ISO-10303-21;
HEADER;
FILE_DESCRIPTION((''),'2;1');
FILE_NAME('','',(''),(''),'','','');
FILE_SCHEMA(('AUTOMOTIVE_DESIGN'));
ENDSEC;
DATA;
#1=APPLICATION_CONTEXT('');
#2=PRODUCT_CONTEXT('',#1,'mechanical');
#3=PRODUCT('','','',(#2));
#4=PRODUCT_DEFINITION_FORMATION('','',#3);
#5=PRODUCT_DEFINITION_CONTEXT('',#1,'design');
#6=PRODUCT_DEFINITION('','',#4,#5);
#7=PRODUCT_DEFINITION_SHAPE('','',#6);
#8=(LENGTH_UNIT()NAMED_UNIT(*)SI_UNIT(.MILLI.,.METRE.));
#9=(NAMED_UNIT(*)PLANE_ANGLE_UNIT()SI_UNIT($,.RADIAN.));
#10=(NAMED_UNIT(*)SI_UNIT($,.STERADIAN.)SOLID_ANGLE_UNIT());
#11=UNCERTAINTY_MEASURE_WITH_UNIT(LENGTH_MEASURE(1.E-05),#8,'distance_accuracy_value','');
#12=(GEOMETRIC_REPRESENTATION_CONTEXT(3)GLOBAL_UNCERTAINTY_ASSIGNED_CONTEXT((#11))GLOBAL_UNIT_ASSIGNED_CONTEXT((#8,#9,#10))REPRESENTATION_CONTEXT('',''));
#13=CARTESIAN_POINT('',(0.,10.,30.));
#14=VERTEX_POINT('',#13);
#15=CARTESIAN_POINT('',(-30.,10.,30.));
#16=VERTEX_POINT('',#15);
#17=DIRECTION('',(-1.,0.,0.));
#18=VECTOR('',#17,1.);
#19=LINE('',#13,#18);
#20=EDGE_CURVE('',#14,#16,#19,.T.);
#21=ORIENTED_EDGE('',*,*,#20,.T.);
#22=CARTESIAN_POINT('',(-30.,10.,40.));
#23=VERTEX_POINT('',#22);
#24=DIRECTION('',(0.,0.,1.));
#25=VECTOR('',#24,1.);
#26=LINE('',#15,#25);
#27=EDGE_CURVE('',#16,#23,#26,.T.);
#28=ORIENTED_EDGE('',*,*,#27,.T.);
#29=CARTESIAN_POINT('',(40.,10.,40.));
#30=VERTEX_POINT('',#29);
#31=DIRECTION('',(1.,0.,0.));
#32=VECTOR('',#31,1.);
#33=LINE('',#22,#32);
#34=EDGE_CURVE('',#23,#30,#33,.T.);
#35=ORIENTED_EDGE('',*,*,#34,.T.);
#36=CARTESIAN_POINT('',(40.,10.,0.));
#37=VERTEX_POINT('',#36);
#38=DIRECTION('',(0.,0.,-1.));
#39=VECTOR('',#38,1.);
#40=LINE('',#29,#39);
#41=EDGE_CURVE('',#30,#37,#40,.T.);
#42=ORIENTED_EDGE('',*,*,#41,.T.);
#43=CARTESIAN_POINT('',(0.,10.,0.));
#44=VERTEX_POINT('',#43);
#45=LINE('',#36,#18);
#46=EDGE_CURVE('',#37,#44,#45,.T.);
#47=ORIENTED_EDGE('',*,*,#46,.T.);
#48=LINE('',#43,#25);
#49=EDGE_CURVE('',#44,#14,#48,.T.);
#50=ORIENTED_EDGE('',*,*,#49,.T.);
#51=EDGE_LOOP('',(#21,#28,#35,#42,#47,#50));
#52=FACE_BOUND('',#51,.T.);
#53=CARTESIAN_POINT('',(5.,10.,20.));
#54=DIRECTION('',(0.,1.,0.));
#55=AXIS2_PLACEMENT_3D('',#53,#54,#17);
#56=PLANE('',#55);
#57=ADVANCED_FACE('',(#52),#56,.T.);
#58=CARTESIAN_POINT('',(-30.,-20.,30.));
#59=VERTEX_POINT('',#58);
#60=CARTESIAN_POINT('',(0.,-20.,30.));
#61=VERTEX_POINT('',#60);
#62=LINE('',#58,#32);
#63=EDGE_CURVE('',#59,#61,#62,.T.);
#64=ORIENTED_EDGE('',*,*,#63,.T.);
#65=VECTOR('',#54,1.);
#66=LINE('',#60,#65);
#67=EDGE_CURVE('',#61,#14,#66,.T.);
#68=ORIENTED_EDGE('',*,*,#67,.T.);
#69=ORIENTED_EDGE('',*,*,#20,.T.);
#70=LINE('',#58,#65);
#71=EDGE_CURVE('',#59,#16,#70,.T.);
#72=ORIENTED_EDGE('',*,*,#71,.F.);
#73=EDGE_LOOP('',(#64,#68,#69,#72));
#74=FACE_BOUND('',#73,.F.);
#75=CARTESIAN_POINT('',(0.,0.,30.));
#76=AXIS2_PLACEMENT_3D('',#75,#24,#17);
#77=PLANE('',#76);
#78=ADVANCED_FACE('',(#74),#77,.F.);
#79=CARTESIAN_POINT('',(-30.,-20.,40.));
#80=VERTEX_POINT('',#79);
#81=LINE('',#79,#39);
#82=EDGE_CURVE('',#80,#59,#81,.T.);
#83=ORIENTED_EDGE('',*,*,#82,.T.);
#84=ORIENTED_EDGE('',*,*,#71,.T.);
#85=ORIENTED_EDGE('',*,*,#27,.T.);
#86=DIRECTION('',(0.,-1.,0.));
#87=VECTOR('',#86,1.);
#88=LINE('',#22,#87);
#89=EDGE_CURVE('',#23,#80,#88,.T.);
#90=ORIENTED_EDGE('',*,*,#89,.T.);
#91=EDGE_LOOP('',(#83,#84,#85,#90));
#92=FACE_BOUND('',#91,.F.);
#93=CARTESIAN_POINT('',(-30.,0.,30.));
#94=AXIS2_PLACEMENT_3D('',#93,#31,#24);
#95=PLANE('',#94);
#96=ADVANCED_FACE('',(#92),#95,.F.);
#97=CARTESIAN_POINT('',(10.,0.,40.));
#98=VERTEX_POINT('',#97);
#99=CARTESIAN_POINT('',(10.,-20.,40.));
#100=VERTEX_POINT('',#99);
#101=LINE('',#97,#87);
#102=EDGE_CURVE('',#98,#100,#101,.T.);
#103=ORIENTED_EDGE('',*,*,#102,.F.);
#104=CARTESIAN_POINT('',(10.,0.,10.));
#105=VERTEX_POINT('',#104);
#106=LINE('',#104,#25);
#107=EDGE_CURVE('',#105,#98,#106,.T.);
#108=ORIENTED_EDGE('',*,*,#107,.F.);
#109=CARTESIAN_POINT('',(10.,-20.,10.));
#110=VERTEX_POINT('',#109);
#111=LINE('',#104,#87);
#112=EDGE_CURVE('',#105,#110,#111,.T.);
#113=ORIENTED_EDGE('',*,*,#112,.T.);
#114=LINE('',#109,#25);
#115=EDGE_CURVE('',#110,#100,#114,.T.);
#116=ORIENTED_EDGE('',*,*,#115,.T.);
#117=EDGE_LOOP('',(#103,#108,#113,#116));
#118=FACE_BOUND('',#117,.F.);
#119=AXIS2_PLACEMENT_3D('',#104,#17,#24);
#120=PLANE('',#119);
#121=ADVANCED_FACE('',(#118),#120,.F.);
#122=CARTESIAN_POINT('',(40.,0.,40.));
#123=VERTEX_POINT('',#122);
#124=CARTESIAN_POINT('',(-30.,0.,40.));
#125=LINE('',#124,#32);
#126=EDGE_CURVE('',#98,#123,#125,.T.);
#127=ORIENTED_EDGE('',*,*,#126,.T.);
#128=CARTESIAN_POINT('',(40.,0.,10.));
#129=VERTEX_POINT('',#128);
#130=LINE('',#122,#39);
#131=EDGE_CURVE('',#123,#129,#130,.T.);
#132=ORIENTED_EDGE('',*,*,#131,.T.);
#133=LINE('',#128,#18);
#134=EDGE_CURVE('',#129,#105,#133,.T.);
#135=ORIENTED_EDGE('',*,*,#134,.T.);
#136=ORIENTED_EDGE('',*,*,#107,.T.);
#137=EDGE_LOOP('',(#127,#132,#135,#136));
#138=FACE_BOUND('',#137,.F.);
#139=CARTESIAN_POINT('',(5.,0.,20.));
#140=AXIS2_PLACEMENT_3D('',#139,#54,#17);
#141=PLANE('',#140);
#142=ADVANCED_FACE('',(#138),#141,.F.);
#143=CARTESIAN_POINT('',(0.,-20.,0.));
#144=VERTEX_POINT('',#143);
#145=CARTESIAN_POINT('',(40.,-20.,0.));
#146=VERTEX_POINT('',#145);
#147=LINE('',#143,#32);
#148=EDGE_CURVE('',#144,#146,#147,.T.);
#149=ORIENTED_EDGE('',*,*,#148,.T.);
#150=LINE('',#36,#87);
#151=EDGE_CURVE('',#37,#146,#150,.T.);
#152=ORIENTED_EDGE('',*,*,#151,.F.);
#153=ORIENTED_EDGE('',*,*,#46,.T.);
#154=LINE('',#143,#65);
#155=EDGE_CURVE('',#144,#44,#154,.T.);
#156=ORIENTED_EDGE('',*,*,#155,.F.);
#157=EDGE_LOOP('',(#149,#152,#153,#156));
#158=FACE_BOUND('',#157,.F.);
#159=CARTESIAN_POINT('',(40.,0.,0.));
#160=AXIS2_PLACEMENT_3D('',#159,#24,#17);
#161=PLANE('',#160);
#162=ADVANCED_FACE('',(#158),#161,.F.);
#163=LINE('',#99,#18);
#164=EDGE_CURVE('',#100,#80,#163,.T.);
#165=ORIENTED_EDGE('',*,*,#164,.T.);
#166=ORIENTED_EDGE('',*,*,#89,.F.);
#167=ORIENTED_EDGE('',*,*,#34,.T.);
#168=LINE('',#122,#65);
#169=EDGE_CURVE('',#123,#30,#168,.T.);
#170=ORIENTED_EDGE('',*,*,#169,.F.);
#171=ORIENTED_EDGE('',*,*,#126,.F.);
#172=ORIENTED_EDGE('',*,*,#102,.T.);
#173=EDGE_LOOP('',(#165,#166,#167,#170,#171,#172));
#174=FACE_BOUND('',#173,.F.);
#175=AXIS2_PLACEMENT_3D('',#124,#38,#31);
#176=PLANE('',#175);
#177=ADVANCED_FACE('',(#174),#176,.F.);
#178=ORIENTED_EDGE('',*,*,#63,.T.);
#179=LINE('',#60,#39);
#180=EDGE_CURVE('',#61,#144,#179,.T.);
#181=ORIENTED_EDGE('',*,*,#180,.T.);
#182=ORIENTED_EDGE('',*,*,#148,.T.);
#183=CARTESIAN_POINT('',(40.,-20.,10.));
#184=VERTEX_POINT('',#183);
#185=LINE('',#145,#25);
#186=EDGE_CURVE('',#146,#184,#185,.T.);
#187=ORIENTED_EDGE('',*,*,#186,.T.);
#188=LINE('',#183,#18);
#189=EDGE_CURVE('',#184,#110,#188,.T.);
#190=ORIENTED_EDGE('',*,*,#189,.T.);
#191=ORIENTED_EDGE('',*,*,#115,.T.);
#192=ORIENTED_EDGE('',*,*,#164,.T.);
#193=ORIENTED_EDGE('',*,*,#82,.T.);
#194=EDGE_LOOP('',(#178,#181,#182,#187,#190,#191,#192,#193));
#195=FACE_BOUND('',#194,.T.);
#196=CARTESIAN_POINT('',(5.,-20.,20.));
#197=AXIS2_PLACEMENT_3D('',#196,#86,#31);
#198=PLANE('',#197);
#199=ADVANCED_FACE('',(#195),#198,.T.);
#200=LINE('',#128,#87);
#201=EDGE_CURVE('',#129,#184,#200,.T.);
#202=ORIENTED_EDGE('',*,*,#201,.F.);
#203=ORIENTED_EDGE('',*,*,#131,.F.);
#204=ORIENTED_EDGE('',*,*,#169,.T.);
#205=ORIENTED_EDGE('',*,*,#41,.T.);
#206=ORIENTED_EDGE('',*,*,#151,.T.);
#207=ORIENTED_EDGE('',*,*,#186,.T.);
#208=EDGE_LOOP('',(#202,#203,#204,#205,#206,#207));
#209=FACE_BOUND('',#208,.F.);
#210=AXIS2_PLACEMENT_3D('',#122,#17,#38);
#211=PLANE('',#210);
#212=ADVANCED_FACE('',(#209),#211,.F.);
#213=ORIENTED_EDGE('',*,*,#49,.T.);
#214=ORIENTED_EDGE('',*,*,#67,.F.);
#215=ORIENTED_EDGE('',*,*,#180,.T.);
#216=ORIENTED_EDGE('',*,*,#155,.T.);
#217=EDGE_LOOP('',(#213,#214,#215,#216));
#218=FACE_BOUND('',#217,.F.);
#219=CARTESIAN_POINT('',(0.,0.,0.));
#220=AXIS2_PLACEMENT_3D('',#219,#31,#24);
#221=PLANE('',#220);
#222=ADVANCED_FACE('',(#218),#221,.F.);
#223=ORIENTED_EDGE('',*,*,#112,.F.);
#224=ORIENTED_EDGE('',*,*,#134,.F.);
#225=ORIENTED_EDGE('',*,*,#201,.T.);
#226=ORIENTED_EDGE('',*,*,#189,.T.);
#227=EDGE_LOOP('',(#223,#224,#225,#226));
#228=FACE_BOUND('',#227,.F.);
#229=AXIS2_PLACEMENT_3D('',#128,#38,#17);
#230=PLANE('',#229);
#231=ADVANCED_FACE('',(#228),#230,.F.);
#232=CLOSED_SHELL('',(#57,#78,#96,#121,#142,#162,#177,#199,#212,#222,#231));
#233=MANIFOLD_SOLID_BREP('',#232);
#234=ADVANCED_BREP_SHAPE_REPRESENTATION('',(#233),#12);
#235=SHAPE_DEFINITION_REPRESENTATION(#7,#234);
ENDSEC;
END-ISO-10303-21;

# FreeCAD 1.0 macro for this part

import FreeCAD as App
import Part
import Sketcher
from FreeCAD import Vector


def add_polygon(sketch, points):
    """Adds a closed chain of lines whose ends are joined by coincident constraints."""
    first, n = sketch.GeometryCount, len(points)
    for a, b in zip(points, points[1:] + points[:1]):
        sketch.addGeometry(Part.LineSegment(App.Vector(*a, 0), App.Vector(*b, 0)), False)
    for i in range(n):
        sketch.addConstraint(Sketcher.Constraint("Coincident", first + i, 2, first + (i + 1) % n, 1))

doc = App.newDocument("Part")
params = doc.addObject("Spreadsheet::Sheet", "Params")
for row, (alias, value) in enumerate([
    ("sketch1_width", "40 mm"),
    ("sketch1_width2", "30 mm"),
    ("sketch1_height", "10 mm"),
    ("pad1_length", "20 mm"),
    ("sketch2_width", "40 mm"),
    ("sketch2_width2", "30 mm"),
    ("pad2_length", "10 mm"),
], start=1):
    params.set(f"A{row}", alias)
    params.set(f"B{row}", "=" + value)
    params.setAlias(f"B{row}", alias)

body = doc.addObject("PartDesign::Body", "Body")

sketch1 = body.newObject("Sketcher::SketchObject", "Sketch")
sketch1.AttachmentSupport = (doc.getObject("XZ_Plane"), [""])
sketch1.MapMode = "FlatFace"
add_polygon(sketch1, [(0, 30), (0, 0), (40, 0), (40, 10), (10, 10), (10, 40), (-30, 40), (-30, 30)])
sketch1.addConstraint([
    Sketcher.Constraint("Vertical", 0),
    Sketcher.Constraint("Horizontal", 1),
    Sketcher.Constraint("Vertical", 2),
    Sketcher.Constraint("Horizontal", 3),
    Sketcher.Constraint("Vertical", 4),
    Sketcher.Constraint("Horizontal", 5),
    Sketcher.Constraint("Vertical", 6),
    Sketcher.Constraint("Horizontal", 7),
    Sketcher.Constraint("Coincident", 0, 2, -1, 1),
    Sketcher.Constraint("Equal", 1, 5),
    Sketcher.Constraint("Equal", 7, 0),
    Sketcher.Constraint("Equal", 0, 4),
    Sketcher.Constraint("DistanceX", 1, 1, 1, 2, 40.0),
    Sketcher.Constraint("DistanceX", 3, 2, 3, 1, 30.0),
    Sketcher.Constraint("DistanceY", 2, 1, 2, 2, 10.0),
])
sketch1.setExpression("Constraints[20]", "Params.sketch1_width")
sketch1.setExpression("Constraints[21]", "Params.sketch1_width2")
sketch1.setExpression("Constraints[22]", "Params.sketch1_height")
pad1 = body.newObject("PartDesign::Pad", "Pad")
pad1.Profile = sketch1
pad1.setExpression("Length", "Params.pad1_length")

sketch2 = body.newObject("Sketcher::SketchObject", "Sketch001")
sketch2.AttachmentSupport = (doc.getObject("XZ_Plane"), [""])
sketch2.MapMode = "FlatFace"
add_polygon(sketch2, [(40, 0), (0, 0), (0, 30), (-30, 30), (-30, 40), (40, 40)])
sketch2.addConstraint([
    Sketcher.Constraint("Horizontal", 0),
    Sketcher.Constraint("Vertical", 1),
    Sketcher.Constraint("Horizontal", 2),
    Sketcher.Constraint("Vertical", 3),
    Sketcher.Constraint("Horizontal", 4),
    Sketcher.Constraint("Vertical", 5),
    Sketcher.Constraint("Coincident", 0, 2, -1, 1),
    Sketcher.Constraint("Equal", 2, 1),
    Sketcher.Constraint("Equal", 0, 5),
    Sketcher.Constraint("DistanceX", 0, 2, 0, 1, 40.0),
    Sketcher.Constraint("DistanceX", 2, 2, 2, 1, 30.0),
])
sketch2.setExpression("Constraints[15]", "Params.sketch2_width")
sketch2.setExpression("Constraints[16]", "Params.sketch2_width2")
pad2 = body.newObject("PartDesign::Pad", "Pad001")
pad2.Profile = sketch2
pad2.setExpression("Length", "Params.pad2_length")
pad2.Reversed = True

doc.recompute()
